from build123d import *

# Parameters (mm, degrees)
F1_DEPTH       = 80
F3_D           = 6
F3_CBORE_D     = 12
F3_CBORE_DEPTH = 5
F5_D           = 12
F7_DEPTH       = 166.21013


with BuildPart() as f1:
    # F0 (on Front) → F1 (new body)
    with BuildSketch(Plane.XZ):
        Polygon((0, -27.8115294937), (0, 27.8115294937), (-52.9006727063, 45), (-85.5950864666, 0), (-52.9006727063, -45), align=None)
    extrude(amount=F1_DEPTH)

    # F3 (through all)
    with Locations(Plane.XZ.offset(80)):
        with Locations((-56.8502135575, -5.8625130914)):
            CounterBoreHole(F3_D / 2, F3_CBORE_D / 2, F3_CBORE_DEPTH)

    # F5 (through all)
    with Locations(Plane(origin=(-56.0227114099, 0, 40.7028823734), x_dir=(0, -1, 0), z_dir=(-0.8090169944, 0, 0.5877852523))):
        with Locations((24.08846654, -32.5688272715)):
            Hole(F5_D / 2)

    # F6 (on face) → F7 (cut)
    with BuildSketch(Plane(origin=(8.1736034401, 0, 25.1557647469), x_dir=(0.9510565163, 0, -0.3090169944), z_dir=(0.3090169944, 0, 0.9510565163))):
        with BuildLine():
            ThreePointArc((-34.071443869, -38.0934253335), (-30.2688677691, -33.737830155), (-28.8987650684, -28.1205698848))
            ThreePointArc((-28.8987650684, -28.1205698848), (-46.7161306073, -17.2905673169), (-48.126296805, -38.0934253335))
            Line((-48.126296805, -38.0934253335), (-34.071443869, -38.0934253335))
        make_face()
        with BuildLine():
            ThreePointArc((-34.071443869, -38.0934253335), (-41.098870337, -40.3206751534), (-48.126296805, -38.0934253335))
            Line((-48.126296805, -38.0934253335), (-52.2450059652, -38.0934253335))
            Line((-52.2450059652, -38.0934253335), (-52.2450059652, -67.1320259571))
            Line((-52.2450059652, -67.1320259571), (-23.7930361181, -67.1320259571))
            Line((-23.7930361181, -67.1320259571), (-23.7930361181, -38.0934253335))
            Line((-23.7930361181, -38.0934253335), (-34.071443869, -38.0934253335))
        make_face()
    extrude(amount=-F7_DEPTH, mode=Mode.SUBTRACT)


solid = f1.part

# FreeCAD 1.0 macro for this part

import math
import FreeCAD as App
import Part
import Sketcher
Q = App.Units.Quantity


def add_polygon(sketch, points):
    """Adds a closed chain of lines whose ends are joined by coincident constraints."""
    first, n = sketch.GeometryCount, len(points)
    for a, b in zip(points, points[1:] + points[:1]):
        sketch.addGeometry(Part.LineSegment(App.Vector(*a, 0), App.Vector(*b, 0)), False)
    for i in range(n):
        sketch.addConstraint(Sketcher.Constraint("Coincident", first + i, 2, first + (i + 1) % n, 1))

doc = App.newDocument("Part")
body = doc.addObject("PartDesign::Body", "Body")
body.AllowCompound = True

# Sketch on XZ plane
sketch1 = doc.addObject("Sketcher::SketchObject", "Sketch")
body.addObject(sketch1)
sketch1.AttachmentSupport = (doc.XZ_Plane, [""])
sketch1.MapMode = "FlatFace"
add_polygon(sketch1, [(0, -28), (0, 28), (-53, 45), (-86, 0), (-53, -45)])  # lines 0-4
sketch1.addConstraint(Sketcher.Constraint("Vertical", 0))
sketch1.addConstraint(Sketcher.Constraint("Symmetric", 0, 2, 4, 2, -1, 1))
sketch1.addConstraint(Sketcher.Constraint("Symmetric", 1, 2, 3, 2, -1))
sketch1.addConstraint(Sketcher.Constraint("PointOnObject", 2, 2, -1))
sketch1.addConstraint(Sketcher.Constraint("Equal", 1, 2))
sketch1.addConstraint(Sketcher.Constraint("Angle", 1, Q("162 deg")))
sketch1.addConstraint(Sketcher.Constraint("Angle", 2, Q("-126 deg")))
sketch1.addConstraint(Sketcher.Constraint("DistanceY", -1, 1, 1, 2, Q("45 mm")))
pad1 = doc.addObject("PartDesign::Pad", "Pad")
body.addObject(pad1)
pad1.Profile = sketch1
pad1.Length = 80

# Sketch on XZ plane
sketch2 = doc.addObject("Sketcher::SketchObject", "Sketch001")
body.addObject(sketch2)
sketch2.AttachmentSupport = (doc.XZ_Plane, [""])
sketch2.MapMode = "FlatFace"
sketch2.AttachmentOffset = App.Placement(App.Vector(0, 0, 80), App.Rotation())
sketch2.addGeometry(Part.Circle(App.Vector(-56.9, -5.9, 0), App.Vector(0, 0, 1), 3), False)
sketch2.addConstraint(Sketcher.Constraint("Diameter", 0, Q("6 mm")))
sketch2.addConstraint(Sketcher.Constraint("DistanceX", 0, 3, -1, 1, Q("56.850214 mm")))
sketch2.addConstraint(Sketcher.Constraint("DistanceY", 0, 3, -1, 1, Q("5.862513 mm")))
doc.recompute()
hole = doc.addObject("PartDesign::Hole", "Hole")
body.addObject(hole)
hole.Profile = sketch2
hole.ThreadType = "None"
hole.Diameter = 6
hole.DepthType = "ThroughAll"
hole.HoleCutType = "Counterbore"
hole.HoleCutDiameter = 12
hole.HoleCutDepth = 5

# Sketch on an angled plane
sketch3 = doc.addObject("Sketcher::SketchObject", "Sketch002")
body.addObject(sketch3)
sketch3.Placement = App.Placement(App.Vector(-56.022711, 0, 40.702882), App.Rotation(App.Vector(0, -1, 0), App.Vector(0.587785252, 0, 0.809016994), App.Vector(-0.809016994, 0, 0.587785252), "ZXY"))
sketch3.addGeometry(Part.Circle(App.Vector(24, -33, 0), App.Vector(0, 0, 1), 6), False)
sketch3.addConstraint(Sketcher.Constraint("Diameter", 0, Q("12 mm")))
sketch3.addConstraint(Sketcher.Constraint("DistanceX", -1, 1, 0, 3, Q("24.088467 mm")))
sketch3.addConstraint(Sketcher.Constraint("DistanceY", 0, 3, -1, 1, Q("32.568827 mm")))
doc.recompute()
hole2 = doc.addObject("PartDesign::Hole", "Hole001")
body.addObject(hole2)
hole2.Profile = sketch3
hole2.ThreadType = "None"
hole2.Diameter = 12
hole2.DepthType = "ThroughAll"

# Sketch on an angled plane
sketch4 = doc.addObject("Sketcher::SketchObject", "Sketch003")
body.addObject(sketch4)
sketch4.Placement = App.Placement(App.Vector(8.173603, 0, 25.155765), App.Rotation(App.Vector(0.951056516, 0, -0.309016994), App.Vector(0, 0.999999999, 0), App.Vector(0.309016994, 0, 0.951056516), "ZXY"))
sketch4.addGeometry(Part.ArcOfCircle(Part.Circle(App.Vector(-41.1, -28.1, 0), App.Vector(0, 0, 1), 12.2), math.radians(-55), math.radians(0)), False)
sketch4.addGeometry(Part.ArcOfCircle(Part.Circle(App.Vector(-41.1, -28.1, 0), App.Vector(0, 0, 1), 12.2), math.radians(0), math.radians(235)), False)
sketch4.addGeometry(Part.LineSegment(App.Vector(-48.1, -38.1, 0), App.Vector(-34.1, -38.1, 0)), False)
sketch4.addGeometry(Part.ArcOfCircle(Part.Circle(App.Vector(-41.1, -28.1, 0), App.Vector(0, 0, 1), 12.2), math.radians(-125), math.radians(-55)), False)
sketch4.addGeometry(Part.LineSegment(App.Vector(-48.1, -38.1, 0), App.Vector(-52.2, -38.1, 0)), False)
sketch4.addGeometry(Part.LineSegment(App.Vector(-52.2, -38.1, 0), App.Vector(-52.2, -67.1, 0)), False)
sketch4.addGeometry(Part.LineSegment(App.Vector(-52.2, -67.1, 0), App.Vector(-23.8, -67.1, 0)), False)
sketch4.addGeometry(Part.LineSegment(App.Vector(-23.8, -67.1, 0), App.Vector(-23.8, -38.1, 0)), False)
sketch4.addGeometry(Part.LineSegment(App.Vector(-23.8, -38.1, 0), App.Vector(-34.1, -38.1, 0)), False)
sketch4.addConstraint(Sketcher.Constraint("Tangent", 0, 2, 1, 1))
sketch4.addConstraint(Sketcher.Constraint("Coincident", 1, 2, 2, 1))
sketch4.addConstraint(Sketcher.Constraint("Coincident", 2, 2, 0, 1))
sketch4.addConstraint(Sketcher.Constraint("Coincident", 3, 1, 4, 1))
sketch4.addConstraint(Sketcher.Constraint("Coincident", 4, 2, 5, 1))
sketch4.addConstraint(Sketcher.Constraint("Coincident", 5, 2, 6, 1))
sketch4.addConstraint(Sketcher.Constraint("Coincident", 6, 2, 7, 1))
sketch4.addConstraint(Sketcher.Constraint("Coincident", 7, 2, 8, 1))
sketch4.addConstraint(Sketcher.Constraint("Coincident", 8, 2, 3, 2))
sketch4.addConstraint(Sketcher.Constraint("Horizontal", 2))
sketch4.addConstraint(Sketcher.Constraint("Horizontal", 4))
sketch4.addConstraint(Sketcher.Constraint("Vertical", 5))
sketch4.addConstraint(Sketcher.Constraint("Horizontal", 6))
sketch4.addConstraint(Sketcher.Constraint("Vertical", 7))
sketch4.addConstraint(Sketcher.Constraint("Horizontal", 8))
sketch4.addConstraint(Sketcher.Constraint("Coincident", 3, 3, 0, 3))
sketch4.addConstraint(Sketcher.Constraint("Coincident", 3, 1, 1, 2))
sketch4.addConstraint(Sketcher.Constraint("Coincident", 8, 2, 2, 2))
sketch4.addConstraint(Sketcher.Constraint("Horizontal", 3, 3, 0, 2))
sketch4.addConstraint(Sketcher.Constraint("DistanceY", 5, 2, 5, 1, Q("29.038601 mm")))
sketch4.addConstraint(Sketcher.Constraint("Radius", 0, Q("12.200105 mm")))
sketch4.addConstraint(Sketcher.Constraint("DistanceX", 4, 2, 4, 1, Q("4.118709 mm")))
sketch4.addConstraint(Sketcher.Constraint("DistanceX", 6, 1, 6, 2, Q("28.45197 mm")))
sketch4.addConstraint(Sketcher.Constraint("DistanceX", 2, 1, 2, 2, Q("14.054853 mm")))
sketch4.addConstraint(Sketcher.Constraint("DistanceX", 0, 3, -1, 1, Q("41.09887 mm")))
sketch4.addConstraint(Sketcher.Constraint("DistanceY", 0, 3, -1, 1, Q("28.12057 mm")))
pocket1 = doc.addObject("PartDesign::Pocket", "Pocket")
body.addObject(pocket1)
pocket1.Profile = sketch4
pocket1.Length = 166.21013

doc.recompute()
